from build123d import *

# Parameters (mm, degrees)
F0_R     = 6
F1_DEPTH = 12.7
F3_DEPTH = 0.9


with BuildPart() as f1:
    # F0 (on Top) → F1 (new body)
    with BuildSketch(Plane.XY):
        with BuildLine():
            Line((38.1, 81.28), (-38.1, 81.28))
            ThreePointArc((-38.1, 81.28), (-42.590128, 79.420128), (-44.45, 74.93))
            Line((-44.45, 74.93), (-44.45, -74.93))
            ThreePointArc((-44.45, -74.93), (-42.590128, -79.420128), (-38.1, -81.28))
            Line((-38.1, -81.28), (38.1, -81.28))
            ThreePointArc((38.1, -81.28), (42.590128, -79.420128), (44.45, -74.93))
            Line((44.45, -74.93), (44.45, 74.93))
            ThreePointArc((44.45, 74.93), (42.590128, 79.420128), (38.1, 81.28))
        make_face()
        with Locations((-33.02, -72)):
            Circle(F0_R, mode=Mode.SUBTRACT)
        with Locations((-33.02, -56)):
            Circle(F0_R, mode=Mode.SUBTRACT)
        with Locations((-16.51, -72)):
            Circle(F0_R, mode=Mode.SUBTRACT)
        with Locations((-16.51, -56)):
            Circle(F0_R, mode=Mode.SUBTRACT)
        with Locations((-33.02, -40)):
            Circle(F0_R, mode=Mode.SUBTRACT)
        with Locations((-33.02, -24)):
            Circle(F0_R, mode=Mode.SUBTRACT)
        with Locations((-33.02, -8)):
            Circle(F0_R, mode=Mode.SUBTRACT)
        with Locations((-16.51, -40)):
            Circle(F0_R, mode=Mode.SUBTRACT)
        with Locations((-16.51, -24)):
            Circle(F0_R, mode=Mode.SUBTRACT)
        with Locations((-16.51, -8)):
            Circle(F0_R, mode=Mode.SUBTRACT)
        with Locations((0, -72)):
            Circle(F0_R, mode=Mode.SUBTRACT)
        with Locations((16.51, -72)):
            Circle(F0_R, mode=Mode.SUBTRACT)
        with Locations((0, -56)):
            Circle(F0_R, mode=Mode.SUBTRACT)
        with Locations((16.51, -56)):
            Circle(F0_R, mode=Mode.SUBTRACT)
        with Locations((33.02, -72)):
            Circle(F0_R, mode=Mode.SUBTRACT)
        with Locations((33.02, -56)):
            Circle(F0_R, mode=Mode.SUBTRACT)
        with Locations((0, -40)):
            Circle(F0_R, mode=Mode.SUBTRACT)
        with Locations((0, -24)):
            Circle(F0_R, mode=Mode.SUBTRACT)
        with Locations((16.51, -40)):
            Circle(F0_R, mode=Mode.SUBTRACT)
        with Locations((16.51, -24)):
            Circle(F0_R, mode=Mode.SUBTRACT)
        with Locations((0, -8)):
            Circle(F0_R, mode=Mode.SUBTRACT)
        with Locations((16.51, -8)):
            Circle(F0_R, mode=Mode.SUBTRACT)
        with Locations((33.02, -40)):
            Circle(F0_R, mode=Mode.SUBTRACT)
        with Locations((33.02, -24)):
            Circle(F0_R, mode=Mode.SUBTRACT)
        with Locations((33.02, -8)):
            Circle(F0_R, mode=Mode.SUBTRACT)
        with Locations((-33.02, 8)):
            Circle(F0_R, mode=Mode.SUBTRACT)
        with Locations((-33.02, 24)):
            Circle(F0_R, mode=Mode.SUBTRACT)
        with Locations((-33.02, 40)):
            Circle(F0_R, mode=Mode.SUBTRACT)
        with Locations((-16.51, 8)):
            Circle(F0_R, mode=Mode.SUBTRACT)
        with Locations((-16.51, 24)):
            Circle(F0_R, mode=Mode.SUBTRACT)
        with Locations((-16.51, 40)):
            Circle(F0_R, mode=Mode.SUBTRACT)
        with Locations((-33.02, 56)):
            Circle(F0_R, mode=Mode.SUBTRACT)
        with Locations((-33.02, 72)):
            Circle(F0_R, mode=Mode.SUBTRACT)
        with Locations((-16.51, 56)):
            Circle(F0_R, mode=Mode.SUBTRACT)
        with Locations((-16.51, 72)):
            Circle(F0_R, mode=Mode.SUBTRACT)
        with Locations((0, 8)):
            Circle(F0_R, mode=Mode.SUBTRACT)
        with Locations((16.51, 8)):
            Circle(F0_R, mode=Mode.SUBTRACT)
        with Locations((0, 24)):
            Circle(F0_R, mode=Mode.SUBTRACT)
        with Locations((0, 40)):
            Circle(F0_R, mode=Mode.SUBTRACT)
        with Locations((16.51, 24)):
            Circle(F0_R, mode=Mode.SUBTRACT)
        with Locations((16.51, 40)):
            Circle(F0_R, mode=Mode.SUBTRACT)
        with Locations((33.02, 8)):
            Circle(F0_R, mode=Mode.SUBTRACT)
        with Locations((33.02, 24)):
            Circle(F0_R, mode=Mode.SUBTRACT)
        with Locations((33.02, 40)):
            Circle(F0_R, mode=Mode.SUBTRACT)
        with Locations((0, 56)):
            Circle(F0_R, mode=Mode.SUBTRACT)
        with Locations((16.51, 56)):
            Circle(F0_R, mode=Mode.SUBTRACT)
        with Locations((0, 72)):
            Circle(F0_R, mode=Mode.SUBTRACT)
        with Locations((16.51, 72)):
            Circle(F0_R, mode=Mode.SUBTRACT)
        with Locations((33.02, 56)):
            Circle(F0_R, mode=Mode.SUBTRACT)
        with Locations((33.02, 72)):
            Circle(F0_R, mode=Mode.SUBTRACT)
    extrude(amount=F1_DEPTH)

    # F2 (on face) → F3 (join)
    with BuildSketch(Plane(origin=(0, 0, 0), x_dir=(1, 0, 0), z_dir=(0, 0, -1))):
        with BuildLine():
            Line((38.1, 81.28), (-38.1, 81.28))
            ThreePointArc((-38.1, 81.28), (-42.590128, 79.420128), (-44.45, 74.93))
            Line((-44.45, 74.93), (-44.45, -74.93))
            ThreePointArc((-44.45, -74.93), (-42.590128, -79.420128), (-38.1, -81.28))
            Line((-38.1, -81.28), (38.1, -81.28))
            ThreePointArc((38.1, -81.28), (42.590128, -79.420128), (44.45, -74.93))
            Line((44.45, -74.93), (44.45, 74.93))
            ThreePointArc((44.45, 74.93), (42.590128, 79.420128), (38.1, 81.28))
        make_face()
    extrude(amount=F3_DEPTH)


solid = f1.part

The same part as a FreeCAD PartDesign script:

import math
import FreeCAD as App
import Part
import Sketcher
from FreeCAD import Vector
Q = App.Units.Quantity

doc = App.newDocument("Part")
body = doc.addObject("PartDesign::Body", "Body")

# Sketch on XY plane
sketch1 = body.newObject("Sketcher::SketchObject", "Sketch")
sketch1.AttachmentSupport = (doc.getObject("XY_Plane"), [""])
sketch1.MapMode = "FlatFace"
sketch1.addGeometry(Part.LineSegment(Vector(38.1, 81.28, 0), Vector(-38.1, 81.28, 0)), False)
sketch1.addGeometry(Part.ArcOfCircle(Part.Circle(Vector(-38.1, 74.93, 0), Vector(0, 0, 1), 6.35), math.radians(90.000002), math.radians(179.999998)), False)
sketch1.addGeometry(Part.LineSegment(Vector(-44.45, 74.93, 0), Vector(-44.45, -74.93, 0)), False)
sketch1.addGeometry(Part.ArcOfCircle(Part.Circle(Vector(-38.1, -74.93, 0), Vector(0, 0, 1), 6.35), math.radians(-179.999998), math.radians(-90.000002)), False)
sketch1.addGeometry(Part.LineSegment(Vector(-38.1, -81.28, 0), Vector(38.1, -81.28, 0)), False)
sketch1.addGeometry(Part.ArcOfCircle(Part.Circle(Vector(38.1, -74.93, 0), Vector(0, 0, 1), 6.35), math.radians(-89.999998), math.radians(-0.000002)), False)
sketch1.addGeometry(Part.LineSegment(Vector(44.45, -74.93, 0), Vector(44.45, 74.93, 0)), False)
sketch1.addGeometry(Part.ArcOfCircle(Part.Circle(Vector(38.1, 74.93, 0), Vector(0, 0, 1), 6.35), math.radians(0.000002), math.radians(89.999998)), False)
sketch1.addGeometry(Part.Circle(Vector(-33.02, -72, 0), Vector(0, 0, 1), 6), False)
sketch1.addGeometry(Part.Circle(Vector(-33.02, -56, 0), Vector(0, 0, 1), 6), False)
sketch1.addGeometry(Part.Circle(Vector(-33.02, -40, 0), Vector(0, 0, 1), 6), False)
sketch1.addGeometry(Part.Circle(Vector(-16.51, -72, 0), Vector(0, 0, 1), 6), False)
sketch1.addGeometry(Part.Circle(Vector(-16.51, -56, 0), Vector(0, 0, 1), 6), False)
sketch1.addGeometry(Part.Circle(Vector(-16.51, -40, 0), Vector(0, 0, 1), 6), False)
sketch1.addGeometry(Part.Circle(Vector(-33.02, -24, 0), Vector(0, 0, 1), 6), False)
sketch1.addGeometry(Part.Circle(Vector(-33.02, -8, 0), Vector(0, 0, 1), 6), False)
sketch1.addGeometry(Part.Circle(Vector(-16.51, -24, 0), Vector(0, 0, 1), 6), False)
sketch1.addGeometry(Part.Circle(Vector(-16.51, -8, 0), Vector(0, 0, 1), 6), False)
sketch1.addGeometry(Part.Circle(Vector(0, -72, 0), Vector(0, 0, 1), 6), False)
sketch1.addGeometry(Part.Circle(Vector(16.51, -72, 0), Vector(0, 0, 1), 6), False)
sketch1.addGeometry(Part.Circle(Vector(0, -56, 0), Vector(0, 0, 1), 6), False)
sketch1.addGeometry(Part.Circle(Vector(0, -40, 0), Vector(0, 0, 1), 6), False)
sketch1.addGeometry(Part.Circle(Vector(16.51, -56, 0), Vector(0, 0, 1), 6), False)
sketch1.addGeometry(Part.Circle(Vector(16.51, -40, 0), Vector(0, 0, 1), 6), False)
sketch1.addGeometry(Part.Circle(Vector(33.02, -72, 0), Vector(0, 0, 1), 6), False)
sketch1.addGeometry(Part.Circle(Vector(33.02, -56, 0), Vector(0, 0, 1), 6), False)
sketch1.addGeometry(Part.Circle(Vector(33.02, -40, 0), Vector(0, 0, 1), 6), False)
sketch1.addGeometry(Part.Circle(Vector(0, -24, 0), Vector(0, 0, 1), 6), False)
sketch1.addGeometry(Part.Circle(Vector(16.51, -24, 0), Vector(0, 0, 1), 6), False)
sketch1.addGeometry(Part.Circle(Vector(0, -8, 0), Vector(0, 0, 1), 6), False)
sketch1.addGeometry(Part.Circle(Vector(16.51, -8, 0), Vector(0, 0, 1), 6), False)
sketch1.addGeometry(Part.Circle(Vector(33.02, -24, 0), Vector(0, 0, 1), 6), False)
sketch1.addGeometry(Part.Circle(Vector(33.02, -8, 0), Vector(0, 0, 1), 6), False)
sketch1.addGeometry(Part.Circle(Vector(-33.02, 8, 0), Vector(0, 0, 1), 6), False)
sketch1.addGeometry(Part.Circle(Vector(-33.02, 24, 0), Vector(0, 0, 1), 6), False)
sketch1.addGeometry(Part.Circle(Vector(-16.51, 8, 0), Vector(0, 0, 1), 6), False)
sketch1.addGeometry(Part.Circle(Vector(-16.51, 24, 0), Vector(0, 0, 1), 6), False)
sketch1.addGeometry(Part.Circle(Vector(-33.02, 40, 0), Vector(0, 0, 1), 6), False)
sketch1.addGeometry(Part.Circle(Vector(-33.02, 56, 0), Vector(0, 0, 1), 6), False)
sketch1.addGeometry(Part.Circle(Vector(-33.02, 72, 0), Vector(0, 0, 1), 6), False)
sketch1.addGeometry(Part.Circle(Vector(-16.51, 40, 0), Vector(0, 0, 1), 6), False)
sketch1.addGeometry(Part.Circle(Vector(-16.51, 56, 0), Vector(0, 0, 1), 6), False)
sketch1.addGeometry(Part.Circle(Vector(-16.51, 72, 0), Vector(0, 0, 1), 6), False)
sketch1.addGeometry(Part.Circle(Vector(0, 8, 0), Vector(0, 0, 1), 6), False)
sketch1.addGeometry(Part.Circle(Vector(16.51, 8, 0), Vector(0, 0, 1), 6), False)
sketch1.addGeometry(Part.Circle(Vector(0, 24, 0), Vector(0, 0, 1), 6), False)
sketch1.addGeometry(Part.Circle(Vector(16.51, 24, 0), Vector(0, 0, 1), 6), False)
sketch1.addGeometry(Part.Circle(Vector(33.02, 8, 0), Vector(0, 0, 1), 6), False)
sketch1.addGeometry(Part.Circle(Vector(33.02, 24, 0), Vector(0, 0, 1), 6), False)
sketch1.addGeometry(Part.Circle(Vector(0, 40, 0), Vector(0, 0, 1), 6), False)
sketch1.addGeometry(Part.Circle(Vector(0, 56, 0), Vector(0, 0, 1), 6), False)
sketch1.addGeometry(Part.Circle(Vector(16.51, 40, 0), Vector(0, 0, 1), 6), False)
sketch1.addGeometry(Part.Circle(Vector(16.51, 56, 0), Vector(0, 0, 1), 6), False)
sketch1.addGeometry(Part.Circle(Vector(0, 72, 0), Vector(0, 0, 1), 6), False)
sketch1.addGeometry(Part.Circle(Vector(16.51, 72, 0), Vector(0, 0, 1), 6), False)
sketch1.addGeometry(Part.Circle(Vector(33.02, 40, 0), Vector(0, 0, 1), 6), False)
sketch1.addGeometry(Part.Circle(Vector(33.02, 56, 0), Vector(0, 0, 1), 6), False)
sketch1.addGeometry(Part.Circle(Vector(33.02, 72, 0), Vector(0, 0, 1), 6), False)
sketch1.addConstraint(Sketcher.Constraint("Tangent", 0, 2, 1, 1))
sketch1.addConstraint(Sketcher.Constraint("Tangent", 1, 2, 2, 1))
sketch1.addConstraint(Sketcher.Constraint("Tangent", 2, 2, 3, 1))
sketch1.addConstraint(Sketcher.Constraint("Tangent", 3, 2, 4, 1))
sketch1.addConstraint(Sketcher.Constraint("Tangent", 4, 2, 5, 1))
sketch1.addConstraint(Sketcher.Constraint("Tangent", 5, 2, 6, 1))
sketch1.addConstraint(Sketcher.Constraint("Tangent", 6, 2, 7, 1))
sketch1.addConstraint(Sketcher.Constraint("Tangent", 7, 2, 0, 1))
sketch1.addConstraint(Sketcher.Constraint("Horizontal", 0))
sketch1.addConstraint(Sketcher.Constraint("Vertical", 2))
sketch1.addConstraint(Sketcher.Constraint("Horizontal", 4))
sketch1.addConstraint(Sketcher.Constraint("Vertical", 6))
sketch1.addConstraint(Sketcher.Constraint("Equal", 1, 3))
sketch1.addConstraint(Sketcher.Constraint("Equal", 3, 5))
sketch1.addConstraint(Sketcher.Constraint("Equal", 5, 7))
sketch1.addConstraint(Sketcher.Constraint("Equal", 8, 9))
sketch1.addConstraint(Sketcher.Constraint("Equal", 9, 10))
sketch1.addConstraint(Sketcher.Constraint("Equal", 10, 11))
sketch1.addConstraint(Sketcher.Constraint("Equal", 11, 12))
sketch1.addConstraint(Sketcher.Constraint("Equal", 12, 13))
sketch1.addConstraint(Sketcher.Constraint("Equal", 13, 14))
sketch1.addConstraint(Sketcher.Constraint("Equal", 14, 15))
sketch1.addConstraint(Sketcher.Constraint("Equal", 15, 16))
sketch1.addConstraint(Sketcher.Constraint("Equal", 16, 17))
sketch1.addConstraint(Sketcher.Constraint("Equal", 17, 18))
sketch1.addConstraint(Sketcher.Constraint("Equal", 18, 19))
sketch1.addConstraint(Sketcher.Constraint("Equal", 19, 20))
sketch1.addConstraint(Sketcher.Constraint("Equal", 20, 21))
sketch1.addConstraint(Sketcher.Constraint("Equal", 21, 22))
sketch1.addConstraint(Sketcher.Constraint("Equal", 22, 23))
sketch1.addConstraint(Sketcher.Constraint("Equal", 23, 24))
sketch1.addConstraint(Sketcher.Constraint("Equal", 24, 25))
sketch1.addConstraint(Sketcher.Constraint("Equal", 25, 26))
sketch1.addConstraint(Sketcher.Constraint("Equal", 26, 27))
sketch1.addConstraint(Sketcher.Constraint("Equal", 27, 28))
sketch1.addConstraint(Sketcher.Constraint("Equal", 28, 29))
sketch1.addConstraint(Sketcher.Constraint("Equal", 29, 30))
sketch1.addConstraint(Sketcher.Constraint("Equal", 30, 31))
sketch1.addConstraint(Sketcher.Constraint("Equal", 31, 32))
sketch1.addConstraint(Sketcher.Constraint("Equal", 32, 33))
sketch1.addConstraint(Sketcher.Constraint("Equal", 33, 34))
sketch1.addConstraint(Sketcher.Constraint("Equal", 34, 35))
sketch1.addConstraint(Sketcher.Constraint("Equal", 35, 36))
sketch1.addConstraint(Sketcher.Constraint("Equal", 36, 37))
sketch1.addConstraint(Sketcher.Constraint("Equal", 37, 38))
sketch1.addConstraint(Sketcher.Constraint("Equal", 38, 39))
sketch1.addConstraint(Sketcher.Constraint("Equal", 39, 40))
sketch1.addConstraint(Sketcher.Constraint("Equal", 40, 41))
sketch1.addConstraint(Sketcher.Constraint("Equal", 41, 42))
sketch1.addConstraint(Sketcher.Constraint("Equal", 42, 43))
sketch1.addConstraint(Sketcher.Constraint("Equal", 43, 44))
sketch1.addConstraint(Sketcher.Constraint("Equal", 44, 45))
sketch1.addConstraint(Sketcher.Constraint("Equal", 45, 46))
sketch1.addConstraint(Sketcher.Constraint("Equal", 46, 47))
sketch1.addConstraint(Sketcher.Constraint("Equal", 47, 48))
sketch1.addConstraint(Sketcher.Constraint("Equal", 48, 49))
sketch1.addConstraint(Sketcher.Constraint("Equal", 49, 50))
sketch1.addConstraint(Sketcher.Constraint("Equal", 50, 51))
sketch1.addConstraint(Sketcher.Constraint("Equal", 51, 52))
sketch1.addConstraint(Sketcher.Constraint("Equal", 52, 53))
sketch1.addConstraint(Sketcher.Constraint("Equal", 53, 54))
sketch1.addConstraint(Sketcher.Constraint("Equal", 54, 55))
sketch1.addConstraint(Sketcher.Constraint("Equal", 55, 56))
sketch1.addConstraint(Sketcher.Constraint("Equal", 56, 57))
sketch1.addConstraint(Sketcher.Constraint("Symmetric", 1, 3, 5, 3, -1, 1))
sketch1.addConstraint(Sketcher.Constraint("Symmetric", 32, 3, 33, 3, -1, 1))
sketch1.addConstraint(Sketcher.Constraint("Symmetric", 31, 3, 34, 3, -1, 1))
sketch1.addConstraint(Sketcher.Constraint("Symmetric", 30, 3, 35, 3, -1, 1))
sketch1.addConstraint(Sketcher.Constraint("Symmetric", 28, 3, 36, 3, -1, 1))
sketch1.addConstraint(Sketcher.Constraint("Symmetric", 26, 3, 37, 3, -1, 1))
sketch1.addConstraint(Sketcher.Constraint("Symmetric", 25, 3, 38, 3, -1, 1))
sketch1.addConstraint(Sketcher.Constraint("Symmetric", 24, 3, 39, 3, -1, 1))
sketch1.addConstraint(Sketcher.Constraint("Symmetric", 23, 3, 40, 3, -1, 1))
sketch1.addConstraint(Sketcher.Constraint("Symmetric", 22, 3, 41, 3, -1, 1))
sketch1.addConstraint(Sketcher.Constraint("Symmetric", 19, 3, 42, 3, -1, 1))
sketch1.addConstraint(Sketcher.Constraint("Symmetric", 29, 3, 43, 3, -1, 1))
sketch1.addConstraint(Sketcher.Constraint("Symmetric", 17, 3, 44, 3, -1, 1))
sketch1.addConstraint(Sketcher.Constraint("Symmetric", 27, 3, 45, 3, -1, 1))
sketch1.addConstraint(Sketcher.Constraint("Symmetric", 16, 3, 46, 3, -1, 1))
sketch1.addConstraint(Sketcher.Constraint("Symmetric", 15, 3, 47, 3, -1, 1))
sketch1.addConstraint(Sketcher.Constraint("Symmetric", 14, 3, 48, 3, -1, 1))
sketch1.addConstraint(Sketcher.Constraint("Symmetric", 21, 3, 49, 3, -1, 1))
sketch1.addConstraint(Sketcher.Constraint("Symmetric", 20, 3, 50, 3, -1, 1))
sketch1.addConstraint(Sketcher.Constraint("Symmetric", 13, 3, 51, 3, -1, 1))
sketch1.addConstraint(Sketcher.Constraint("Symmetric", 12, 3, 52, 3, -1, 1))
sketch1.addConstraint(Sketcher.Constraint("Symmetric", 18, 3, 53, 3, -1, 1))
sketch1.addConstraint(Sketcher.Constraint("Symmetric", 11, 3, 54, 3, -1, 1))
sketch1.addConstraint(Sketcher.Constraint("Symmetric", 10, 3, 55, 3, -1, 1))
sketch1.addConstraint(Sketcher.Constraint("Symmetric", 9, 3, 56, 3, -1, 1))
sketch1.addConstraint(Sketcher.Constraint("Symmetric", 8, 3, 57, 3, -1, 1))
sketch1.addConstraint(Sketcher.Constraint("Symmetric", 11, 3, 19, 3, -2))
sketch1.addConstraint(Sketcher.Constraint("Symmetric", 12, 3, 22, 3, -2))
sketch1.addConstraint(Sketcher.Constraint("Symmetric", 13, 3, 23, 3, -2))
sketch1.addConstraint(Sketcher.Constraint("Symmetric", 8, 3, 24, 3, -2))
sketch1.addConstraint(Sketcher.Constraint("Symmetric", 9, 3, 25, 3, -2))
sketch1.addConstraint(Sketcher.Constraint("Symmetric", 10, 3, 26, 3, -2))
sketch1.addConstraint(Sketcher.Constraint("Symmetric", 16, 3, 28, 3, -2))
sketch1.addConstraint(Sketcher.Constraint("Symmetric", 17, 3, 30, 3, -2))
sketch1.addConstraint(Sketcher.Constraint("Symmetric", 14, 3, 31, 3, -2))
sketch1.addConstraint(Sketcher.Constraint("Symmetric", 15, 3, 32, 3, -2))
sketch1.addConstraint(Sketcher.Constraint("PointOnObject", 18, 3, -2))
sketch1.addConstraint(Sketcher.Constraint("PointOnObject", 20, 3, -2))
sketch1.addConstraint(Sketcher.Constraint("PointOnObject", 21, 3, -2))
sketch1.addConstraint(Sketcher.Constraint("PointOnObject", 27, 3, -2))
sketch1.addConstraint(Sketcher.Constraint("PointOnObject", 29, 3, -2))
sketch1.addConstraint(Sketcher.Constraint("Horizontal", 8, 3, 11, 3))
sketch1.addConstraint(Sketcher.Constraint("Horizontal", 9, 3, 12, 3))
sketch1.addConstraint(Sketcher.Constraint("Horizontal", 10, 3, 13, 3))
sketch1.addConstraint(Sketcher.Constraint("Horizontal", 14, 3, 16, 3))
sketch1.addConstraint(Sketcher.Constraint("Horizontal", 15, 3, 17, 3))
sketch1.addConstraint(Sketcher.Constraint("Horizontal", 11, 3, 18, 3))
sketch1.addConstraint(Sketcher.Constraint("Horizontal", 12, 3, 20, 3))
sketch1.addConstraint(Sketcher.Constraint("Horizontal", 13, 3, 21, 3))
sketch1.addConstraint(Sketcher.Constraint("Horizontal", 16, 3, 27, 3))
sketch1.addConstraint(Sketcher.Constraint("Horizontal", 17, 3, 29, 3))
sketch1.addConstraint(Sketcher.Constraint("Vertical", 8, 3, 9, 3))
sketch1.addConstraint(Sketcher.Constraint("Vertical", 9, 3, 10, 3))
sketch1.addConstraint(Sketcher.Constraint("Vertical", 11, 3, 12, 3))
sketch1.addConstraint(Sketcher.Constraint("Vertical", 12, 3, 13, 3))
sketch1.addConstraint(Sketcher.Constraint("Vertical", 10, 3, 14, 3))
sketch1.addConstraint(Sketcher.Constraint("Vertical", 14, 3, 15, 3))
sketch1.addConstraint(Sketcher.Constraint("Vertical", 13, 3, 16, 3))
sketch1.addConstraint(Sketcher.Constraint("Vertical", 16, 3, 17, 3))
sketch1.addConstraint(Sketcher.Constraint("DistanceX", 0, 2, 0, 1, Q("3 in")))
sketch1.addConstraint(Sketcher.Constraint("Radius", 1, Q("0.25 in")))
sketch1.addConstraint(Sketcher.Constraint("DistanceY", 2, 2, 2, 1, Q("5.9 in")))
sketch1.addConstraint(Sketcher.Constraint("DistanceX", 8, 3, -1, 1, Q("1.3 in")))
sketch1.addConstraint(Sketcher.Constraint("Diameter", 8, 12.0))
sketch1.addConstraint(Sketcher.Constraint("DistanceX", 11, 3, -1, 1, Q("0.65 in")))
sketch1.addConstraint(Sketcher.Constraint("DistanceY", 8, 3, -1, 1, 72.0))
sketch1.addConstraint(Sketcher.Constraint("DistanceY", 9, 3, -1, 1, 56.0))
sketch1.addConstraint(Sketcher.Constraint("DistanceY", 10, 3, -1, 1, 40.0))
sketch1.addConstraint(Sketcher.Constraint("DistanceY", 14, 3, -1, 1, 24.0))
sketch1.addConstraint(Sketcher.Constraint("DistanceY", 15, 3, -1, 1, 8.0))
pad1 = body.newObject("PartDesign::Pad", "Pad")
pad1.Profile = sketch1
pad1.Length = Q("0.5 in")

# Sketch on XY plane
sketch2 = body.newObject("Sketcher::SketchObject", "Sketch001")
sketch2.AttachmentSupport = (doc.getObject("XY_Plane"), [""])
sketch2.MapMode = "FlatFace"
sketch2.addGeometry(Part.LineSegment(Vector(38.1, -81.28, 0), Vector(-38.1, -81.28, 0)), False)
sketch2.addGeometry(Part.ArcOfCircle(Part.Circle(Vector(-38.1, -74.93, 0), Vector(0, 0, 1), 6.35), math.radians(-179.999998), math.radians(-90.000002)), False)
sketch2.addGeometry(Part.LineSegment(Vector(-44.45, -74.93, 0), Vector(-44.45, 74.93, 0)), False)
sketch2.addGeometry(Part.ArcOfCircle(Part.Circle(Vector(-38.1, 74.93, 0), Vector(0, 0, 1), 6.35), math.radians(90.000002), math.radians(179.999998)), False)
sketch2.addGeometry(Part.LineSegment(Vector(-38.1, 81.28, 0), Vector(38.1, 81.28, 0)), False)
sketch2.addGeometry(Part.ArcOfCircle(Part.Circle(Vector(38.1, 74.93, 0), Vector(0, 0, 1), 6.35), math.radians(0.000002), math.radians(89.999998)), False)
sketch2.addGeometry(Part.LineSegment(Vector(44.45, 74.93, 0), Vector(44.45, -74.93, 0)), False)
sketch2.addGeometry(Part.ArcOfCircle(Part.Circle(Vector(38.1, -74.93, 0), Vector(0, 0, 1), 6.35), math.radians(-89.999998), math.radians(-0.000002)), False)
sketch2.addConstraint(Sketcher.Constraint("Tangent", 0, 2, 1, 2))
sketch2.addConstraint(Sketcher.Constraint("Tangent", 1, 1, 2, 1))
sketch2.addConstraint(Sketcher.Constraint("Tangent", 2, 2, 3, 2))
sketch2.addConstraint(Sketcher.Constraint("Tangent", 3, 1, 4, 1))
sketch2.addConstraint(Sketcher.Constraint("Tangent", 4, 2, 5, 2))
sketch2.addConstraint(Sketcher.Constraint("Tangent", 5, 1, 6, 1))
sketch2.addConstraint(Sketcher.Constraint("Tangent", 6, 2, 7, 2))
sketch2.addConstraint(Sketcher.Constraint("Tangent", 7, 1, 0, 1))
sketch2.addConstraint(Sketcher.Constraint("Horizontal", 0))
sketch2.addConstraint(Sketcher.Constraint("Vertical", 2))
sketch2.addConstraint(Sketcher.Constraint("Horizontal", 4))
sketch2.addConstraint(Sketcher.Constraint("Vertical", 6))
sketch2.addConstraint(Sketcher.Constraint("Equal", 1, 3))
sketch2.addConstraint(Sketcher.Constraint("Equal", 3, 5))
sketch2.addConstraint(Sketcher.Constraint("Equal", 5, 7))
sketch2.addConstraint(Sketcher.Constraint("Symmetric", 1, 3, 5, 3, -1, 1))
sketch2.addConstraint(Sketcher.Constraint("DistanceX", 0, 2, 0, 1, Q("3 in")))
sketch2.addConstraint(Sketcher.Constraint("Radius", 1, Q("0.25 in")))
sketch2.addConstraint(Sketcher.Constraint("DistanceY", 2, 1, 2, 2, Q("5.9 in")))
pad2 = body.newObject("PartDesign::Pad", "Pad001")
pad2.Profile = sketch2
pad2.Length = 0.9
pad2.Reversed = True

doc.recompute()
